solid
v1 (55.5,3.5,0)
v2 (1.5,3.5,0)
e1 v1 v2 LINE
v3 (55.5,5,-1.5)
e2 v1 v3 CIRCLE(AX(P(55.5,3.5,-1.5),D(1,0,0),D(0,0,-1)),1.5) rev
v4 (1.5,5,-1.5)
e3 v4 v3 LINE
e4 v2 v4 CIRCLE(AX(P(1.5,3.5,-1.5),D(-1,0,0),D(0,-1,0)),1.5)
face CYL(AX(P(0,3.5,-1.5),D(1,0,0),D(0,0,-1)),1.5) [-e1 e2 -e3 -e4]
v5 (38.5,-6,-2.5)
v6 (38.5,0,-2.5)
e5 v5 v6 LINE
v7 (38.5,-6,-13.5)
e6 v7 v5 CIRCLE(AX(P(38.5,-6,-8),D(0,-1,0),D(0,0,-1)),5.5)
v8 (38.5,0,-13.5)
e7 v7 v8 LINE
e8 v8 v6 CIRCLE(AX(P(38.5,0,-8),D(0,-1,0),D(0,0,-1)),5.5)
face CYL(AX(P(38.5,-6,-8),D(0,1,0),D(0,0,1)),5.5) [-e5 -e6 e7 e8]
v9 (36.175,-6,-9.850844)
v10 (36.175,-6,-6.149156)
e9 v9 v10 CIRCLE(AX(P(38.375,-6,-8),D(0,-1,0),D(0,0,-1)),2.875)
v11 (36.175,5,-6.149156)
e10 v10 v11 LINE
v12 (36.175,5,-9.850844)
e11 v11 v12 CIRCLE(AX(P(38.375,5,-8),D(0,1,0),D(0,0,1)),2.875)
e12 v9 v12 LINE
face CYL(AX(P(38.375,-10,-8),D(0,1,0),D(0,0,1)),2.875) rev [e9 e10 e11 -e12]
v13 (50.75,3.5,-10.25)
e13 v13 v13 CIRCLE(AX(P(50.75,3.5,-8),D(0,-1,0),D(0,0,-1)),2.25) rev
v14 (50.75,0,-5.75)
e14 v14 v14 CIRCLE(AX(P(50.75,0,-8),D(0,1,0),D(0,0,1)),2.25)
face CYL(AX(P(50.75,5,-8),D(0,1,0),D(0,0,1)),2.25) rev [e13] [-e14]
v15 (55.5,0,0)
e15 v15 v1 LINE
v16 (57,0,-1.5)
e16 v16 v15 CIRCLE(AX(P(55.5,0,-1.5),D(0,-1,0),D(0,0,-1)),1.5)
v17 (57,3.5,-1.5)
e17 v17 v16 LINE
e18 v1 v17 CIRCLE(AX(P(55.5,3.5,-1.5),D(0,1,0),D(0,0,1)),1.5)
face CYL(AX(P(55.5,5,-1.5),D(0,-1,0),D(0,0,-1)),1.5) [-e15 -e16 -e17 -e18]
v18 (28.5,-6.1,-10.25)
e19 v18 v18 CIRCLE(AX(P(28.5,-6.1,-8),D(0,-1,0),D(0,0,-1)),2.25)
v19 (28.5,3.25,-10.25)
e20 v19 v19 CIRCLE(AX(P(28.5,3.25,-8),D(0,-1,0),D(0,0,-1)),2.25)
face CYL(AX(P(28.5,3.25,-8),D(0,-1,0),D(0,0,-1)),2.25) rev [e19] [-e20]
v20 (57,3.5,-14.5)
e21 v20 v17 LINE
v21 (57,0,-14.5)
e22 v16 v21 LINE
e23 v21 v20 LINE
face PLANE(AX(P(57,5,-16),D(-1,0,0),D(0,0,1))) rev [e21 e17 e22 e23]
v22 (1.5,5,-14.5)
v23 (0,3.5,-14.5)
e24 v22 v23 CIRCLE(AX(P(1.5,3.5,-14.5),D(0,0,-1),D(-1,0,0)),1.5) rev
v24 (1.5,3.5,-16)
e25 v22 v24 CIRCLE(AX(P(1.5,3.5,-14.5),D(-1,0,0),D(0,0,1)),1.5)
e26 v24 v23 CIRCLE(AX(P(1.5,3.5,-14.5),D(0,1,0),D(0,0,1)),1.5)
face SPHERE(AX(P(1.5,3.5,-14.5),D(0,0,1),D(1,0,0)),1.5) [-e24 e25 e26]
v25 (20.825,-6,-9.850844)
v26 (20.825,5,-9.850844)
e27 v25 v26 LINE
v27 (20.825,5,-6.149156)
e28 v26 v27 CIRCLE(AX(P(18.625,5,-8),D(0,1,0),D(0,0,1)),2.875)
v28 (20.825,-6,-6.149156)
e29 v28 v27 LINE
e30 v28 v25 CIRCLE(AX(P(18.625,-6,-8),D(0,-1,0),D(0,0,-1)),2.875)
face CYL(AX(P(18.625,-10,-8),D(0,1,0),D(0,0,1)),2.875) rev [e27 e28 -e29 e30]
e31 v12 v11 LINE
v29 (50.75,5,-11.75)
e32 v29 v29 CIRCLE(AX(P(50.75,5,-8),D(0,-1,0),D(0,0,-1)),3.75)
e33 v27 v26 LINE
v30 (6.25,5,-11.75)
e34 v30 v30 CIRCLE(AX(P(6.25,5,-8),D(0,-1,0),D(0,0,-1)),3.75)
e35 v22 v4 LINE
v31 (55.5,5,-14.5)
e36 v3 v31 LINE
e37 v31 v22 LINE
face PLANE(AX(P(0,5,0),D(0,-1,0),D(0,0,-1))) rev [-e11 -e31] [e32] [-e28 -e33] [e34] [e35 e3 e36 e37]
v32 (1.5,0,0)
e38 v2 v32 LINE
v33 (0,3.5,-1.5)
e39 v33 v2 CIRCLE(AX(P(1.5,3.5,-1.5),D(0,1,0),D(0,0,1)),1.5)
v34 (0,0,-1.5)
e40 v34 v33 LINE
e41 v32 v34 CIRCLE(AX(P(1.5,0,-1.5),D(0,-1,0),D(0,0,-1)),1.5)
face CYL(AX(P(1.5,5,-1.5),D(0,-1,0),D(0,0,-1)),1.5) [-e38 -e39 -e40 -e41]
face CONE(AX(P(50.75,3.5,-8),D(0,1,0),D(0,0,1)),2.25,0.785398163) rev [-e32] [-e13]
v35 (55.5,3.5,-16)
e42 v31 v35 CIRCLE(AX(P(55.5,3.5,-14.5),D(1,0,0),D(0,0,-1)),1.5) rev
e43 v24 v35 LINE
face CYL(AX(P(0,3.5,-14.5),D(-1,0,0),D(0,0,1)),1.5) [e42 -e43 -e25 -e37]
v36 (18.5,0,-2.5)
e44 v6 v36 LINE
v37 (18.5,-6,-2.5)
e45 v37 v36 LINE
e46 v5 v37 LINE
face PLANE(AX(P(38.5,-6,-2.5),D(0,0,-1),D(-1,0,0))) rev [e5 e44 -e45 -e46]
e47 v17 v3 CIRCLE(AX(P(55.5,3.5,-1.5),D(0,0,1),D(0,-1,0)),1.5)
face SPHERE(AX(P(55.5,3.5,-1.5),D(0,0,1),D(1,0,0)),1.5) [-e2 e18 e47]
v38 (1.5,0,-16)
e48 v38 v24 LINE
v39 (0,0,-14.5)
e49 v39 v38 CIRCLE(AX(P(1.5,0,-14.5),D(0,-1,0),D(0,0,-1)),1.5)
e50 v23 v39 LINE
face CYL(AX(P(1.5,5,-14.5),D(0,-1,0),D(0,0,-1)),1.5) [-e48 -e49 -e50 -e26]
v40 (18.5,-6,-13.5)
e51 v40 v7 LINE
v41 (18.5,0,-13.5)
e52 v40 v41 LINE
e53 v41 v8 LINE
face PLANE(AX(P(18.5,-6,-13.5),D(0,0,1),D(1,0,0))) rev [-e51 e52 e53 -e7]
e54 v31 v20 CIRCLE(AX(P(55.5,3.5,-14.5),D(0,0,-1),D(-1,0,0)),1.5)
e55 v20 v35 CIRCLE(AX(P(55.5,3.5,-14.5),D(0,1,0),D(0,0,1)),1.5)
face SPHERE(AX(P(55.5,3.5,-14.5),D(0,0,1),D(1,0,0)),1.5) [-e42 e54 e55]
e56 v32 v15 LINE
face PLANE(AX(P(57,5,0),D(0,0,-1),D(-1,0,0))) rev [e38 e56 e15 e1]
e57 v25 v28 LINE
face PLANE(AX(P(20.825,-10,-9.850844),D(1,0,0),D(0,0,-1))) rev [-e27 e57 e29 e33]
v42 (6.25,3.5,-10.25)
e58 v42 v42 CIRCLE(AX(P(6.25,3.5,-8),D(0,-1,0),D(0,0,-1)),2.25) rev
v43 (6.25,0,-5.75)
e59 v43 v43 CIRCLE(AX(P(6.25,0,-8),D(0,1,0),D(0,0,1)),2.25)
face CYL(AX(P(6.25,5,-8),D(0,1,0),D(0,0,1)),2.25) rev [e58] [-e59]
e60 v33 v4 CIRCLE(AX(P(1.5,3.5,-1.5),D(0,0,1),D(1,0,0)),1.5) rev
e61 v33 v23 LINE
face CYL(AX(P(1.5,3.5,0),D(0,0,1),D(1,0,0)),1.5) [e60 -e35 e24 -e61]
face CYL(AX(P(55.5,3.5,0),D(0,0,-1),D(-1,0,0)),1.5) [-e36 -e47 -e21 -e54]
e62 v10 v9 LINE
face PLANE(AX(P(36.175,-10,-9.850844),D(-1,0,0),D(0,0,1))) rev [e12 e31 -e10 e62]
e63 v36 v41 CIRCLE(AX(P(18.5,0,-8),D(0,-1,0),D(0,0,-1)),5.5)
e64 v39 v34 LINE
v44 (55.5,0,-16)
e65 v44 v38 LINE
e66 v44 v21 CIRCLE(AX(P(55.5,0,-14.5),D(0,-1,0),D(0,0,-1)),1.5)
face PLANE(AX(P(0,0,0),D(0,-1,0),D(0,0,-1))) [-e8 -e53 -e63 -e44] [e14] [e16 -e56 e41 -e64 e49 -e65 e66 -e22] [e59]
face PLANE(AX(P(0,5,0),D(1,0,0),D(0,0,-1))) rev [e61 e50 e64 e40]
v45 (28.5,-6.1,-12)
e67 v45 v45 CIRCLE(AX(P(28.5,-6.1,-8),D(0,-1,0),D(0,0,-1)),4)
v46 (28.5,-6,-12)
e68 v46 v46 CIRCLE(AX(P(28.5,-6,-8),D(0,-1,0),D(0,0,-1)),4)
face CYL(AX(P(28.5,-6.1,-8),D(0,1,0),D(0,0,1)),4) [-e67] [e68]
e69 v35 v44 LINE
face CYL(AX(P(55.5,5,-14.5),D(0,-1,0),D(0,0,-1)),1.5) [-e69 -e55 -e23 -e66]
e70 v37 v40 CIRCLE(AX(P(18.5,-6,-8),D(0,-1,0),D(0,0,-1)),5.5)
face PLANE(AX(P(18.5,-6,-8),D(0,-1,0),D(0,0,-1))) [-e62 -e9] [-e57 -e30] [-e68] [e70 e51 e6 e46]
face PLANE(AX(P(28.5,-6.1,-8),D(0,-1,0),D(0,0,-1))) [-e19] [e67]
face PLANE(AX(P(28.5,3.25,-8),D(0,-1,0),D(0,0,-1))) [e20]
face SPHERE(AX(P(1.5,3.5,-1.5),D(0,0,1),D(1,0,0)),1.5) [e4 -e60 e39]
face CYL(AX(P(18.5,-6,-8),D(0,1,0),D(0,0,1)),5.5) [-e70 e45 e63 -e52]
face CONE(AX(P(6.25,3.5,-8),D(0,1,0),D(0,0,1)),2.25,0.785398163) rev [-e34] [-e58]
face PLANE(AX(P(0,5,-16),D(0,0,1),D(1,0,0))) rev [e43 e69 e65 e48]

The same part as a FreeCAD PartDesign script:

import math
import FreeCAD as App
import Part
import Sketcher
from FreeCAD import Vector
Q = App.Units.Quantity


def edges_at(feature, points):
    """Names of the edges that pass closest to the given points."""
    edges = feature.Shape.Edges
    near = lambda p: min(range(len(edges)), key=lambda i: edges[i].distToShape(Part.Vertex(*p))[0])
    return sorted({f"Edge{near(p) + 1}" for p in points})

doc = App.newDocument("Part")
body = doc.addObject("PartDesign::Body", "Body")

sketch1 = body.newObject("Sketcher::SketchObject", "Sketch")
sketch1.AttachmentSupport = (doc.getObject("XZ_Plane"), [""])
sketch1.MapMode = "FlatFace"
sketch1.addGeometry([
    Part.LineSegment(Vector(0, -16, 0), Vector(0, 0, 0)),
    Part.LineSegment(Vector(0, 0, 0), Vector(57, 0, 0)),
    Part.LineSegment(Vector(57, 0, 0), Vector(57, -16, 0)),
    Part.LineSegment(Vector(57, -16, 0), Vector(0, -16, 0)),
], False)
sketch1.addConstraint([
    Sketcher.Constraint("Coincident", 0, 2, 1, 1),
    Sketcher.Constraint("Coincident", 1, 2, 2, 1),
    Sketcher.Constraint("Coincident", 2, 2, 3, 1),
    Sketcher.Constraint("Coincident", 3, 2, 0, 1),
    Sketcher.Constraint("Vertical", 0),
    Sketcher.Constraint("Horizontal", 1),
    Sketcher.Constraint("Vertical", 2),
    Sketcher.Constraint("Horizontal", 3),
    Sketcher.Constraint("Coincident", 0, 2, -1, 1),
    Sketcher.Constraint("DistanceX", 1, 1, 1, 2, Q("57 mm")),
    Sketcher.Constraint("DistanceY", 0, 1, 0, 2, Q("16 mm")),
])
pad1 = body.newObject("PartDesign::Pad", "Pad")
pad1.Profile = sketch1
pad1.Length = 5
pad1.Reversed = True
doc.recompute()

fillet = body.newObject("PartDesign::Fillet", "Fillet")
fillet.Base = (pad1, edges_at(pad1, [
    (28.5, 5, -16),
    (0, 5, -8),
    (28.5, 5, 0),
    (57, 5, -8),
    (0, 2.5, 0),
    (0, 2.5, -16),
    (57, 2.5, -16),
    (57, 2.5, 0),
]))
fillet.Radius = 1.5

sketch2 = body.newObject("Sketcher::SketchObject", "Sketch001")
sketch2.AttachmentSupport = (doc.getObject("XZ_Plane"), [""])
sketch2.MapMode = "FlatFace"
sketch2.AttachmentOffset = App.Placement(Vector(0, 0, -5), App.Rotation())
sketch2.addGeometry([
    Part.LineSegment(Vector(36.2, -9.9, 0), Vector(36.2, -6.1, 0)),
    Part.ArcOfCircle(Part.Circle(Vector(38.4, -8, 0), Vector(0, 0, 1), 2.9), math.radians(-140), math.radians(140)),
    Part.LineSegment(Vector(20.8, -6.1, 0), Vector(20.8, -9.9, 0)),
    Part.ArcOfCircle(Part.Circle(Vector(18.6, -8, 0), Vector(0, 0, 1), 2.9), math.radians(40), math.radians(320)),
], False)
sketch2.addConstraint([
    Sketcher.Constraint("Coincident", 0, 1, 1, 1),
    Sketcher.Constraint("Coincident", 1, 2, 0, 2),
    Sketcher.Constraint("Coincident", 2, 1, 3, 1),
    Sketcher.Constraint("Coincident", 3, 2, 2, 2),
    Sketcher.Constraint("Vertical", 0),
    Sketcher.Constraint("Vertical", 2),
    Sketcher.Constraint("Equal", 1, 3),
    Sketcher.Constraint("Horizontal", 1, 3, 3, 3),
    Sketcher.Constraint("Horizontal", 1, 2, 2, 1),
    Sketcher.Constraint("DistanceY", 1, 3, -1, 1, Q("8 mm")),
    Sketcher.Constraint("Radius", 1, Q("2.875 mm")),
    Sketcher.Constraint("DistanceX", 0, 1, 1, 3, Q("2.2 mm")),
    Sketcher.Constraint("DistanceX", 3, 3, 1, 3, Q("19.75 mm")),
    Sketcher.Constraint("DistanceX", -1, 1, 1, 3, Q("38.375 mm")),
])
pocket1 = body.newObject("PartDesign::Pocket", "Pocket")
pocket1.Profile = sketch2
pocket1.Length = 15
pocket1.Reversed = True

sketch3 = body.newObject("Sketcher::SketchObject", "Sketch002")
sketch3.AttachmentSupport = (doc.getObject("XZ_Plane"), [""])
sketch3.MapMode = "FlatFace"
sketch3.AttachmentOffset = App.Placement(Vector(0, 0, -5), App.Rotation())
sketch3.addGeometry([
    Part.Circle(Vector(6.2, -8, 0), Vector(0, 0, 1), 2.2),
    Part.Circle(Vector(50.8, -8, 0), Vector(0, 0, 1), 2.2),
], False)
sketch3.addConstraint([
    Sketcher.Constraint("Equal", 0, 1),
    Sketcher.Constraint("Horizontal", 0, 3, 1, 3),
    Sketcher.Constraint("Diameter", 0, Q("4.5 mm")),
    Sketcher.Constraint("DistanceY", 0, 3, -1, 1, Q("8 mm")),
    Sketcher.Constraint("DistanceX", 0, 3, 1, 3, Q("44.5 mm")),
    Sketcher.Constraint("DistanceX", -1, 1, 0, 3, Q("6.25 mm")),
])
doc.recompute()
hole = body.newObject("PartDesign::Hole", "Hole")
hole.Profile = sketch3
hole.ThreadType = "None"
hole.Diameter = 4.5
hole.DepthType = "ThroughAll"
hole.Reversed = True
doc.recompute()

chamfer = body.newObject("PartDesign::Chamfer", "Chamfer")
chamfer.Base = (hole, edges_at(hole, [(53, 5, -8), (8.5, 5, -8)]))
chamfer.Size = 1.5

sketch4 = body.newObject("Sketcher::SketchObject", "Sketch003")
sketch4.AttachmentSupport = (doc.getObject("XZ_Plane"), [""])
sketch4.MapMode = "FlatFace"
sketch4.addGeometry([
    Part.LineSegment(Vector(38.5, -2.5, 0), Vector(18.5, -2.5, 0)),
    Part.ArcOfCircle(Part.Circle(Vector(18.5, -8, 0), Vector(0, 0, 1), 5.5), math.radians(90), math.radians(270)),
    Part.LineSegment(Vector(18.5, -13.5, 0), Vector(38.5, -13.5, 0)),
    Part.ArcOfCircle(Part.Circle(Vector(38.5, -8, 0), Vector(0, 0, 1), 5.5), math.radians(-90), math.radians(90)),
    Part.LineSegment(Vector(20.8, -6.1, 0), Vector(20.8, -9.9, 0)),
    Part.ArcOfCircle(Part.Circle(Vector(18.6, -8, 0), Vector(0, 0, 1), 2.9), math.radians(40), math.radians(320)),
    Part.LineSegment(Vector(36.2, -9.9, 0), Vector(36.2, -6.1, 0)),
    Part.ArcOfCircle(Part.Circle(Vector(38.4, -8, 0), Vector(0, 0, 1), 2.9), math.radians(-140), math.radians(140)),
], False)
sketch4.addConstraint([
    Sketcher.Constraint("Tangent", 0, 2, 1, 1),
    Sketcher.Constraint("Tangent", 1, 2, 2, 1),
    Sketcher.Constraint("Tangent", 2, 2, 3, 1),
    Sketcher.Constraint("Tangent", 3, 2, 0, 1),
    Sketcher.Constraint("Coincident", 4, 1, 5, 1),
    Sketcher.Constraint("Coincident", 5, 2, 4, 2),
    Sketcher.Constraint("Coincident", 6, 1, 7, 1),
    Sketcher.Constraint("Coincident", 7, 2, 6, 2),
    Sketcher.Constraint("Horizontal", 0),
    Sketcher.Constraint("Horizontal", 2),
    Sketcher.Constraint("Vertical", 4),
    Sketcher.Constraint("Vertical", 6),
    Sketcher.Constraint("Equal", 5, 7),
    Sketcher.Constraint("Horizontal", 3, 3, 5, 3),
    Sketcher.Constraint("Horizontal", 5, 3, 7, 3),
    Sketcher.Constraint("Horizontal", 5, 2, 6, 1),
    Sketcher.Constraint("Radius", 1, Q("5.5 mm")),
    Sketcher.Constraint("DistanceX", 0, 2, 0, 1, Q("20 mm")),
    Sketcher.Constraint("DistanceY", 1, 3, -1, 1, Q("8 mm")),
    Sketcher.Constraint("Radius", 5, Q("2.875 mm")),
    Sketcher.Constraint("DistanceX", -1, 1, 1, 3, Q("18.5 mm")),
    Sketcher.Constraint("DistanceX", 5, 3, 4, 1, Q("2.2 mm")),
    Sketcher.Constraint("DistanceX", 5, 3, 7, 3, Q("19.75 mm")),
    Sketcher.Constraint("DistanceX", -1, 1, 5, 3, Q("18.625 mm")),
])
pad2 = body.newObject("PartDesign::Pad", "Pad001")
pad2.Profile = sketch4
pad2.Length = 6

sketch5 = body.newObject("Sketcher::SketchObject", "Sketch004")
sketch5.AttachmentSupport = (doc.getObject("XZ_Plane"), [""])
sketch5.MapMode = "FlatFace"
sketch5.AttachmentOffset = App.Placement(Vector(0, 0, 6), App.Rotation())
sketch5.addGeometry(Part.Circle(Vector(28.5, -8, 0), Vector(0, 0, 1), 2.2), False)
sketch5.addConstraint([
    Sketcher.Constraint("Diameter", 0, Q("4.5 mm")),
    Sketcher.Constraint("DistanceY", 0, 3, -1, 1, Q("8 mm")),
    Sketcher.Constraint("DistanceX", -1, 1, 0, 3, Q("28.5 mm")),
])
pocket2 = body.newObject("PartDesign::Pocket", "Pocket001")
pocket2.Profile = sketch5
pocket2.Length = 9.25

sketch6 = body.newObject("Sketcher::SketchObject", "Sketch005")
sketch6.AttachmentSupport = (doc.getObject("XZ_Plane"), [""])
sketch6.MapMode = "FlatFace"
sketch6.AttachmentOffset = App.Placement(Vector(0, 0, 6.1), App.Rotation())
sketch6.addGeometry([
    Part.Circle(Vector(28.5, -8, 0), Vector(0, 0, 1), 4),
    Part.Circle(Vector(28.5, -8, 0), Vector(0, 0, 1), 2.2),
], False)
sketch6.addConstraint([
    Sketcher.Constraint("Coincident", 1, 3, 0, 3),
    Sketcher.Constraint("Diameter", 0, Q("8 mm")),
    Sketcher.Constraint("Diameter", 1, Q("4.5 mm")),
    Sketcher.Constraint("DistanceY", 0, 3, -1, 1, Q("8 mm")),
    Sketcher.Constraint("DistanceX", -1, 1, 0, 3, Q("28.5 mm")),
])
pad3 = body.newObject("PartDesign::Pad", "Pad002")
pad3.Profile = sketch6
pad3.Length = 0.1
pad3.Reversed = True

doc.recompute()
